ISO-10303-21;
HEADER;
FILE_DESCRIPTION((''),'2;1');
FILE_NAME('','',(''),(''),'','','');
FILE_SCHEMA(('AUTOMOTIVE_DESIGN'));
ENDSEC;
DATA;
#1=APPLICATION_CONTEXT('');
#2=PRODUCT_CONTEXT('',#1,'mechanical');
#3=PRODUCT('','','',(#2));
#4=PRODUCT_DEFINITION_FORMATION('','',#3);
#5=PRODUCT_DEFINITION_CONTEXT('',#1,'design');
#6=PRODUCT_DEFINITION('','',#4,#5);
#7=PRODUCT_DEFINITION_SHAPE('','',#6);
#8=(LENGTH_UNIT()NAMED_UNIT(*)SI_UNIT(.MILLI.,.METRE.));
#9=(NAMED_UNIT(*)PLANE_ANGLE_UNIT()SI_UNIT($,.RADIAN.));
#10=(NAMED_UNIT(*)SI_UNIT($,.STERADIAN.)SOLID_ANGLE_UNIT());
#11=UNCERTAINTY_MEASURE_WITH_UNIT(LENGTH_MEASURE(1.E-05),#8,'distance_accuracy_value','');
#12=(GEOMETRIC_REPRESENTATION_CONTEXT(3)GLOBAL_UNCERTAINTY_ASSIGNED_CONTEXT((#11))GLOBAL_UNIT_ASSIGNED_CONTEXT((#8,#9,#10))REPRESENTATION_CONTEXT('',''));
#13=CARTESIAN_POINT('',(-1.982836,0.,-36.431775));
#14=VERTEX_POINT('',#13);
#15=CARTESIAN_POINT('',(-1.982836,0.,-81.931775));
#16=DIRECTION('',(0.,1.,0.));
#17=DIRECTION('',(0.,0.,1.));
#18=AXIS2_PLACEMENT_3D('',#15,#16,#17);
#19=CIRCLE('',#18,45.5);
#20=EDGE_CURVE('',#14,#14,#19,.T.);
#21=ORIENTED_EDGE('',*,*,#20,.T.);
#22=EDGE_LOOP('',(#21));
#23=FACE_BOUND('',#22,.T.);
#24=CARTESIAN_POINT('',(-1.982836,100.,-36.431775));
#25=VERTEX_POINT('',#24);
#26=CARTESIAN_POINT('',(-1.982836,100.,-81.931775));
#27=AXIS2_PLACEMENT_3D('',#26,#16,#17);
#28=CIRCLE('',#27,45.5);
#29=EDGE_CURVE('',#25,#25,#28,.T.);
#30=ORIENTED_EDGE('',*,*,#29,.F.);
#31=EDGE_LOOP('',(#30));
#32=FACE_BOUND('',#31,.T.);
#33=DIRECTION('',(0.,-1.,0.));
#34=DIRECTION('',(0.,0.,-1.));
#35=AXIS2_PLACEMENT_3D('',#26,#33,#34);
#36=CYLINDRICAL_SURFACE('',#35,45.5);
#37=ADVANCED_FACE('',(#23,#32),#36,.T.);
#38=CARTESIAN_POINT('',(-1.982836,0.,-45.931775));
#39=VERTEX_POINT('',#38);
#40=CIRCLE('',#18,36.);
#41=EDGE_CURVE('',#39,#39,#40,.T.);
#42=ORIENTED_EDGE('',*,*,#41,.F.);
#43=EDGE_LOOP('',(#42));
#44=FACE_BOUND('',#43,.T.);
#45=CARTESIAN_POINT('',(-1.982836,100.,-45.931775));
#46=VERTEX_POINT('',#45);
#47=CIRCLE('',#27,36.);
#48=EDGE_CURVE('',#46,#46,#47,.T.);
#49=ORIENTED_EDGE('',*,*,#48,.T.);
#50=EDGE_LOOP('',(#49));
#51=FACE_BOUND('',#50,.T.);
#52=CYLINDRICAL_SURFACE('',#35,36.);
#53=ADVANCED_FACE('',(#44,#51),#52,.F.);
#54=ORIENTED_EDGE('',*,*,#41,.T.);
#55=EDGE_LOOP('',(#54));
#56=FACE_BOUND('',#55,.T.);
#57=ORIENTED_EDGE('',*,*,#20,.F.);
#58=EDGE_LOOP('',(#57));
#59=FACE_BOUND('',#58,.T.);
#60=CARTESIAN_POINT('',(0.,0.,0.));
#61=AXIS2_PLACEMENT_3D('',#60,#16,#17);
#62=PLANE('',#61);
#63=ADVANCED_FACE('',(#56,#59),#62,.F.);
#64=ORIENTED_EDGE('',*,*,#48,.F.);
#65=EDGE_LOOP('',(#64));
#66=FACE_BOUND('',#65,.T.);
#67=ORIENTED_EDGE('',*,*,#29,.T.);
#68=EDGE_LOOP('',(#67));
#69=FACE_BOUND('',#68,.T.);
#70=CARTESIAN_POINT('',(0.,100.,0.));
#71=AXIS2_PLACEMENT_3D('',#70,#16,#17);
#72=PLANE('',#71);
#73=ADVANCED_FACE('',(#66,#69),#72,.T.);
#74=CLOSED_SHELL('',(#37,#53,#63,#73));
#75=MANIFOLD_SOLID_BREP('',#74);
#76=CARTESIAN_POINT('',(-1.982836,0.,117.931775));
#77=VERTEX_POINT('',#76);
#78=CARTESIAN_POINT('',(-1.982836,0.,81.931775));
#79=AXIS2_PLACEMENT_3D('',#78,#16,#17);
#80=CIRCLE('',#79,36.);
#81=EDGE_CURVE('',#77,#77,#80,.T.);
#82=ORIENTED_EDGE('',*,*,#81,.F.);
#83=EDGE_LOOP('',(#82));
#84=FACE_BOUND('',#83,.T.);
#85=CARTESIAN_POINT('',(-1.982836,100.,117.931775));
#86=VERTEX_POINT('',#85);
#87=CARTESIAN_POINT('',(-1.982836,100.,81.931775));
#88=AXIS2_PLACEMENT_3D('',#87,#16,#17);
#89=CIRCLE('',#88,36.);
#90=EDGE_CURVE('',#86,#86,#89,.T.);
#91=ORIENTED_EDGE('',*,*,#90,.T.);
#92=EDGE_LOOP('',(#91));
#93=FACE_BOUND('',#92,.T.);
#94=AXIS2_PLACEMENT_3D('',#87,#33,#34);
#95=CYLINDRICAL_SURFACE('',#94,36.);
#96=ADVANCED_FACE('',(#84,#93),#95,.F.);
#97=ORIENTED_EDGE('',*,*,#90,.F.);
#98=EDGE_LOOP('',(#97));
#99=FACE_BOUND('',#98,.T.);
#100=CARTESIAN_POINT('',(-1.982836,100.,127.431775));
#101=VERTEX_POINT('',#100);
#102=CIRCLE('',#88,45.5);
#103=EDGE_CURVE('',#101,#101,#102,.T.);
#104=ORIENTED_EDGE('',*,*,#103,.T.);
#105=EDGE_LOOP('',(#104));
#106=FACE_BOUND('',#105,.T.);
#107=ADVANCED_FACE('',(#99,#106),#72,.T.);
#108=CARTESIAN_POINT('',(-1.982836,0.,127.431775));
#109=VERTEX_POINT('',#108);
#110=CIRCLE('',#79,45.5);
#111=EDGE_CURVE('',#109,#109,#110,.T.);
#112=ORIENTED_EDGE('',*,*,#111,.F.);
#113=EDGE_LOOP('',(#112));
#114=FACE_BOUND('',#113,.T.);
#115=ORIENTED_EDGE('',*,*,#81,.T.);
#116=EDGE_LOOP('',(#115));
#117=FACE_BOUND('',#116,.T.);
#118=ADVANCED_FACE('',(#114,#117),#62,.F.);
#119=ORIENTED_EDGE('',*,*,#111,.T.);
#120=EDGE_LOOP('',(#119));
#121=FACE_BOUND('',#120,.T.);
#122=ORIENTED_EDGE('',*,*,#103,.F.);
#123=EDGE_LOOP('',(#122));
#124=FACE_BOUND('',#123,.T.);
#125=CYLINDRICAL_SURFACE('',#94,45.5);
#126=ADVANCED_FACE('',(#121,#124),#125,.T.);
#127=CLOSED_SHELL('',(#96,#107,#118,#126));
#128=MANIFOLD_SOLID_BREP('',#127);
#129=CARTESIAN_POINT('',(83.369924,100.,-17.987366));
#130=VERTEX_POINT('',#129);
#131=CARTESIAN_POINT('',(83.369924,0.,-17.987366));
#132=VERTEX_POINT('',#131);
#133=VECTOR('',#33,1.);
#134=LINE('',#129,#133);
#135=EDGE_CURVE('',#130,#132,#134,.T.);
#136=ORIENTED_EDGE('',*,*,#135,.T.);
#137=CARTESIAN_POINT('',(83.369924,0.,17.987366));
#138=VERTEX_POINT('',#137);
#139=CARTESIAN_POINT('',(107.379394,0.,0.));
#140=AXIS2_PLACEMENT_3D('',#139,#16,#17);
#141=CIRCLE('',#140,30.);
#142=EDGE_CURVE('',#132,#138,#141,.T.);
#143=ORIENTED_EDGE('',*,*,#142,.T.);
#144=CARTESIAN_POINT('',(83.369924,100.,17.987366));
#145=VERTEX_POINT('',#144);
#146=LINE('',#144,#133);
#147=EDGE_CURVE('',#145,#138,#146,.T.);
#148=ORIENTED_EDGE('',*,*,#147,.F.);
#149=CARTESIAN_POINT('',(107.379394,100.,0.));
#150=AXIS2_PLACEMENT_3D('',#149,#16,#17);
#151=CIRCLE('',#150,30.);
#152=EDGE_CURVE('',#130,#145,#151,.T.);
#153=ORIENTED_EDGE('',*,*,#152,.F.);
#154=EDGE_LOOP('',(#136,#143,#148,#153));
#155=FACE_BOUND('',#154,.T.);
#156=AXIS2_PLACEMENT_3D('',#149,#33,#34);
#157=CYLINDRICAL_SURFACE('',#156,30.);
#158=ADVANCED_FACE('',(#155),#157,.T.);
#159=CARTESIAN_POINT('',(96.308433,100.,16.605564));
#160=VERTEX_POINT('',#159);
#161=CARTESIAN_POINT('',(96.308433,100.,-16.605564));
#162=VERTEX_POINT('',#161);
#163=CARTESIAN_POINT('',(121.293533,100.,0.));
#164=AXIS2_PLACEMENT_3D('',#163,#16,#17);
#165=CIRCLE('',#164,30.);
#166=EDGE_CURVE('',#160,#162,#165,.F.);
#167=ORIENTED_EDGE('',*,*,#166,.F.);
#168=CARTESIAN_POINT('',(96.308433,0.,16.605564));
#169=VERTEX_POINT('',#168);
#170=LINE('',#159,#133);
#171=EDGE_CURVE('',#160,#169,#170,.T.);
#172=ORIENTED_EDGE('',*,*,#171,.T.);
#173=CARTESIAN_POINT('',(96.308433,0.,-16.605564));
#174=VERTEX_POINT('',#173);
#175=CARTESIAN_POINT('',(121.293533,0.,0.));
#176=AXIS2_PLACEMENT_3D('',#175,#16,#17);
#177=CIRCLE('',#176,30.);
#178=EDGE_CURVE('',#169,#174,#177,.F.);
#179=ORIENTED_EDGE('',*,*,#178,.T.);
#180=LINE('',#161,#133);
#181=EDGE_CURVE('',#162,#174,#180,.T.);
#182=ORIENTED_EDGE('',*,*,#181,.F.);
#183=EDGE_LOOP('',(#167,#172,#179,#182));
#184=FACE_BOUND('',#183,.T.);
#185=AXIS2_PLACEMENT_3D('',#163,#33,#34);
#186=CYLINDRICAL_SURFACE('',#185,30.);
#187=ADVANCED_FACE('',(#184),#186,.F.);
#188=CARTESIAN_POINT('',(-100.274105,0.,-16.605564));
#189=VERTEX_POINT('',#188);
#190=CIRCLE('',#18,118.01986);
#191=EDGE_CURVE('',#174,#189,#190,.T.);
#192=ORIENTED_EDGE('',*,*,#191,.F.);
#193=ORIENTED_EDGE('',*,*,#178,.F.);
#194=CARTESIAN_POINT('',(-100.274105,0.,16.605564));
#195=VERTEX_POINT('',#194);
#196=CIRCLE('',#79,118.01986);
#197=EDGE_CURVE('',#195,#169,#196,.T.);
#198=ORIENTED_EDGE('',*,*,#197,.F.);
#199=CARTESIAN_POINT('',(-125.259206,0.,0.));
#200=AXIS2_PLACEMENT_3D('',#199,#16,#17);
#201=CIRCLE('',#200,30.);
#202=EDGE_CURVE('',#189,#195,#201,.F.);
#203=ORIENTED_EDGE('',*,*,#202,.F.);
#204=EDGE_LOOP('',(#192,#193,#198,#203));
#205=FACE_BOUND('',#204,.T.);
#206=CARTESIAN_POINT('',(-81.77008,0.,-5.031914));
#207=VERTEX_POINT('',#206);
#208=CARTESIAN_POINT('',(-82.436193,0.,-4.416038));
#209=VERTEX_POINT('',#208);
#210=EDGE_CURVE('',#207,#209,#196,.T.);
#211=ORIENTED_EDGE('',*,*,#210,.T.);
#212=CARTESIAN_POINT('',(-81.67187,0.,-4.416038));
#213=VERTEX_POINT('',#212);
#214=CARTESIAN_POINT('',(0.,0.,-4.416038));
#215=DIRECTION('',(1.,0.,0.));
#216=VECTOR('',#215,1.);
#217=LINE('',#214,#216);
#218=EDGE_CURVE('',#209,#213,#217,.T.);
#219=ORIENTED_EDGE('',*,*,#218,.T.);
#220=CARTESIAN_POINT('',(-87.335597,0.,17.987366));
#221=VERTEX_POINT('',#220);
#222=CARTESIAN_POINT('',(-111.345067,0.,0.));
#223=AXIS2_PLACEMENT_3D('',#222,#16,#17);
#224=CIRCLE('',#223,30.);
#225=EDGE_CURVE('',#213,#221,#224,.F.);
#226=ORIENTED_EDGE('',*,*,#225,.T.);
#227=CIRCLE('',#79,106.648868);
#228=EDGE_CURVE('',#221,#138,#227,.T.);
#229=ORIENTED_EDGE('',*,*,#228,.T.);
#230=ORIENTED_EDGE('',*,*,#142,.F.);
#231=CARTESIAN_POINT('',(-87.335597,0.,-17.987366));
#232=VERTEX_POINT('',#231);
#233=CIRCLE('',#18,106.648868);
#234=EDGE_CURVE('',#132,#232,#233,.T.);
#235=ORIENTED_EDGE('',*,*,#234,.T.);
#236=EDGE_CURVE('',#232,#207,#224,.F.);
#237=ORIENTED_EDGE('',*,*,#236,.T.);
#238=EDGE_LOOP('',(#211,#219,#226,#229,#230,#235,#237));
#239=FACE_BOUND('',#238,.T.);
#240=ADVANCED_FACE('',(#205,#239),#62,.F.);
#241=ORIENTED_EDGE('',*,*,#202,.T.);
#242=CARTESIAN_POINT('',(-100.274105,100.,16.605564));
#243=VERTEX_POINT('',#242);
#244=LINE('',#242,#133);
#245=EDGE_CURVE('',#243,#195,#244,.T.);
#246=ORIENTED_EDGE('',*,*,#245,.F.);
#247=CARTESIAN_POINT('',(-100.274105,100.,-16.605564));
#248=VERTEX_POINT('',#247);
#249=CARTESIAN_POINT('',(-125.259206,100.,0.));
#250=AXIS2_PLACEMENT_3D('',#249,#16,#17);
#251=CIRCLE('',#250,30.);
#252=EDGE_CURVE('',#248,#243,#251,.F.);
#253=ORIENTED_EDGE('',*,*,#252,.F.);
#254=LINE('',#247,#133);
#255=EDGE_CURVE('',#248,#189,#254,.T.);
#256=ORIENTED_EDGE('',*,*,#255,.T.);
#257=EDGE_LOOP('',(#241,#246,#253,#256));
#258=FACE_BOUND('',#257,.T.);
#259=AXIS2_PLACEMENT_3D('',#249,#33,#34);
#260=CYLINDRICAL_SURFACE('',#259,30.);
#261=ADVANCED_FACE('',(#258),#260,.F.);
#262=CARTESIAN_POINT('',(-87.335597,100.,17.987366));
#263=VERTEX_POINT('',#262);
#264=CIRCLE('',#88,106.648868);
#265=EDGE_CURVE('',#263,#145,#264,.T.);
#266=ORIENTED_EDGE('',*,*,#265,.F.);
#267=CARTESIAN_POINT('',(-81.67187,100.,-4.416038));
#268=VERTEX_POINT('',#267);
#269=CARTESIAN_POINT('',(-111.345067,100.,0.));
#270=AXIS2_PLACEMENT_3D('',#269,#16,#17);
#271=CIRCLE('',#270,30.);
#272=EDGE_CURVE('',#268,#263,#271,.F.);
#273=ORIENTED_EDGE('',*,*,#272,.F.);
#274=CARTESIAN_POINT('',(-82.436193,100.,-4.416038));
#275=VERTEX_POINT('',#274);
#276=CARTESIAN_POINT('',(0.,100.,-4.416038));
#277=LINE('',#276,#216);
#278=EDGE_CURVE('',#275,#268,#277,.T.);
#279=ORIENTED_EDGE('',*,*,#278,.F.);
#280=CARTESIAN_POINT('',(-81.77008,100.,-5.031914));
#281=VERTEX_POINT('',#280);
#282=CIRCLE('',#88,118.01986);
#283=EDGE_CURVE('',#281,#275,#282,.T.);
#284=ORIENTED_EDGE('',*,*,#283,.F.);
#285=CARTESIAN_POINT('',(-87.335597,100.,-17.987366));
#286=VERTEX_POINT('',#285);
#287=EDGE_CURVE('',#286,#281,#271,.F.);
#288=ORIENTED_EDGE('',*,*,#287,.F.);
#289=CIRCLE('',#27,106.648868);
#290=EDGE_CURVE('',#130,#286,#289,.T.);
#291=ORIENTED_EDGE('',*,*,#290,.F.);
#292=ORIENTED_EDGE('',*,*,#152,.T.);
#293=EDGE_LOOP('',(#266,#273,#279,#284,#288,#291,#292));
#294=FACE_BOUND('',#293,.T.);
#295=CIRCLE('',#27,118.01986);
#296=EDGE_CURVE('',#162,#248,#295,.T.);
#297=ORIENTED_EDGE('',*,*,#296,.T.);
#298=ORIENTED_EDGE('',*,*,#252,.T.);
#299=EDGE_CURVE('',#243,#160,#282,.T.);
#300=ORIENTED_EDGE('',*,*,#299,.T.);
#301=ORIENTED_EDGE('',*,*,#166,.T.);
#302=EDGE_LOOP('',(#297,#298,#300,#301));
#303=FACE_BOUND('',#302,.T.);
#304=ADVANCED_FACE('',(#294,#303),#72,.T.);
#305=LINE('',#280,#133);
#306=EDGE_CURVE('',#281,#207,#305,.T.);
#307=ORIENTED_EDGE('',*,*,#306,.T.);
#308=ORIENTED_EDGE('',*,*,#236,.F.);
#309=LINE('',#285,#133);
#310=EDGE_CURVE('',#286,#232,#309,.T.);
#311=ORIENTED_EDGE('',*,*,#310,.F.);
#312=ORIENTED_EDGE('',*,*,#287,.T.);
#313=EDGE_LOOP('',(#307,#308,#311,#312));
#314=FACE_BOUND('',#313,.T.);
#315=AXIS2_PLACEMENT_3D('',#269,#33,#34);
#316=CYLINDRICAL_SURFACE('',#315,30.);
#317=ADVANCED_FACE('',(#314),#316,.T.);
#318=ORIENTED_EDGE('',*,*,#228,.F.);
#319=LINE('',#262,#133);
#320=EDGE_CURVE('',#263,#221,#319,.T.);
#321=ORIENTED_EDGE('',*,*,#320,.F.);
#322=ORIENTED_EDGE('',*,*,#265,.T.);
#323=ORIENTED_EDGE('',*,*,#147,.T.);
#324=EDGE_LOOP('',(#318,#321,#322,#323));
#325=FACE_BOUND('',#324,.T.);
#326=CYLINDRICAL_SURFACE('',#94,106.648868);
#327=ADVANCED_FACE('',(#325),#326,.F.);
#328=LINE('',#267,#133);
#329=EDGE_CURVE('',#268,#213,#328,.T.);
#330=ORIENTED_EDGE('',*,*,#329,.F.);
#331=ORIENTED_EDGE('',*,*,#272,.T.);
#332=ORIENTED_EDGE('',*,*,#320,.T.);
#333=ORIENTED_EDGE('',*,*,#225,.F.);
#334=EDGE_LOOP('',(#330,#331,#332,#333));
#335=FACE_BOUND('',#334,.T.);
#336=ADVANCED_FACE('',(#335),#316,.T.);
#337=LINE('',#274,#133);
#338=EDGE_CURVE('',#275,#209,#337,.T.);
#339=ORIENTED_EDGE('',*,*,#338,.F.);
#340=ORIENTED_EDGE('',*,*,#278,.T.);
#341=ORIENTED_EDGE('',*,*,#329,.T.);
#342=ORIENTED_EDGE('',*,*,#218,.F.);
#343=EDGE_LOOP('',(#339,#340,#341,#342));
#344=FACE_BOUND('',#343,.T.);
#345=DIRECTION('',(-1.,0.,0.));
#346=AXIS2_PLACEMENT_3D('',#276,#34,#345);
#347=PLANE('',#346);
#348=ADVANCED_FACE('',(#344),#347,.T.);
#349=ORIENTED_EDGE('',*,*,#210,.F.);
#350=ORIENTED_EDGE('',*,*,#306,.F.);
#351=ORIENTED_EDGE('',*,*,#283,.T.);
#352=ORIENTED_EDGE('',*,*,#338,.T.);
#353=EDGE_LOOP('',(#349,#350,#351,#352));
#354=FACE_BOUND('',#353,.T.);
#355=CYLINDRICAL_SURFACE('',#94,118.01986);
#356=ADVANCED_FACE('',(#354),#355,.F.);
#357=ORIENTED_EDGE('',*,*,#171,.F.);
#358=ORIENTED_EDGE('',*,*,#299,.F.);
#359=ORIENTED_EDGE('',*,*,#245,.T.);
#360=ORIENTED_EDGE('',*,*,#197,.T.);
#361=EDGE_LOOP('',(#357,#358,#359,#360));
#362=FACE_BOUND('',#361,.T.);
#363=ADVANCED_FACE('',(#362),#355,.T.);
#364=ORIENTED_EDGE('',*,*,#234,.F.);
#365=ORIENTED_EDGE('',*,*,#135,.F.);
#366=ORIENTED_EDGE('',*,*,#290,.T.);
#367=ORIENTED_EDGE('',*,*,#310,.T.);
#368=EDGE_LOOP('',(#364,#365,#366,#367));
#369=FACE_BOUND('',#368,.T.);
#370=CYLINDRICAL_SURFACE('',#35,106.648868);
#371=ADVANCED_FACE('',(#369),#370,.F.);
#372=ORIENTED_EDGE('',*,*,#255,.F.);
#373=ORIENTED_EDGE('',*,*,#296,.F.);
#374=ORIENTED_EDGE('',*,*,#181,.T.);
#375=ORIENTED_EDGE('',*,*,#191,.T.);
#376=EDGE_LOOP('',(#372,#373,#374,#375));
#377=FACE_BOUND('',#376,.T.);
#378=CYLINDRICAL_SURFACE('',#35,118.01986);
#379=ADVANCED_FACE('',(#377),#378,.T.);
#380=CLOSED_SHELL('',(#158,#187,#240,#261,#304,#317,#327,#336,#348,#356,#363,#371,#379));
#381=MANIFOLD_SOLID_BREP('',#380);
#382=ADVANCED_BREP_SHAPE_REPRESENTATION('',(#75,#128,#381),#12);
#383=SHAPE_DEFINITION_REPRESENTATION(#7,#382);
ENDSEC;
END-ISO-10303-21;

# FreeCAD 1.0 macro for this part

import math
import FreeCAD as App
import Part
import Sketcher

V = App.Vector

doc = App.newDocument("Part")
body = doc.addObject("PartDesign::Body", "Body")

sketch1 = doc.addObject("Sketcher::SketchObject", "Sketch")
body.addObject(sketch1)
sketch1.AttachmentSupport = (doc.XZ_Plane, [""])
sketch1.MapMode = "FlatFace"
sketch1.addGeometry([
    Part.ArcOfCircle(Part.Circle(V(-125.3, 0, 0), V(0, 0, 1), 30), math.radians(-34), math.radians(34)),
    Part.ArcOfCircle(Part.Circle(V(-2, 81.9, 0), V(0, 0, 1), 118), math.radians(-34), math.radians(214)),
    Part.ArcOfCircle(Part.Circle(V(121.3, 0, 0), V(0, 0, 1), 30), math.radians(146), math.radians(214)),
    Part.ArcOfCircle(Part.Circle(V(-2, -81.9, 0), V(0, 0, 1), 118), math.radians(146), math.radians(394)),
    Part.ArcOfCircle(Part.Circle(V(-2, -81.9, 0), V(0, 0, 1), 106.6), math.radians(143), math.radians(397)),
    Part.ArcOfCircle(Part.Circle(V(107.4, 0, 0), V(0, 0, 1), 30), math.radians(143), math.radians(217)),
    Part.ArcOfCircle(Part.Circle(V(-2, 81.9, 0), V(0, 0, 1), 106.6), math.radians(-37), math.radians(217)),
    Part.ArcOfCircle(Part.Circle(V(-111.3, 0, 0), V(0, 0, 1), 30), math.radians(-8), math.radians(37)),
    Part.LineSegment(V(-81.7, -4.4, 0), V(-82.4, -4.4, 0)),
    Part.ArcOfCircle(Part.Circle(V(-2, 81.9, 0), V(0, 0, 1), 118), math.radians(-132.98), math.radians(-132.54)),
    Part.ArcOfCircle(Part.Circle(V(-111.3, 0, 0), V(0, 0, 1), 30), math.radians(-37), math.radians(-10)),
], False)
sketch1.addConstraint([
    Sketcher.Constraint("Tangent", 0, 2, 1, 2),
    Sketcher.Constraint("Tangent", 1, 1, 2, 1),
    Sketcher.Constraint("Tangent", 2, 2, 3, 2),
    Sketcher.Constraint("Tangent", 3, 1, 0, 1),
    Sketcher.Constraint("Tangent", 4, 2, 5, 2),
    Sketcher.Constraint("Tangent", 5, 1, 6, 1),
    Sketcher.Constraint("Tangent", 6, 2, 7, 2),
    Sketcher.Constraint("Coincident", 7, 1, 8, 1),
    Sketcher.Constraint("Coincident", 8, 2, 9, 1),
    Sketcher.Constraint("Coincident", 9, 2, 10, 2),
    Sketcher.Constraint("Tangent", 10, 1, 4, 1),
    Sketcher.Constraint("Horizontal", 8),
    Sketcher.Constraint("Coincident", 4, 3, 3, 3),
    Sketcher.Constraint("Coincident", 6, 3, 1, 3),
    Sketcher.Constraint("Coincident", 10, 3, 7, 3),
    Sketcher.Constraint("Equal", 0, 2),
    Sketcher.Constraint("Equal", 1, 3),
    Sketcher.Constraint("Equal", 2, 5),
    Sketcher.Constraint("Equal", 4, 6),
    Sketcher.Constraint("Equal", 5, 7),
    Sketcher.Constraint("Equal", 7, 10),
    Sketcher.Constraint("Symmetric", 1, 3, 3, 3, -1),
    Sketcher.Constraint("Radius", 0, 30.0),
    Sketcher.Constraint("Radius", 1, 118.01986),
    Sketcher.Constraint("Radius", 4, 106.648868),
    Sketcher.Constraint("Radius", 9, 118.019824),
    Sketcher.Constraint("DistanceX", 0, 3, 5, 3, 232.6386),
    Sketcher.Constraint("DistanceX", 8, 2, 8, 1, 0.764322),
    Sketcher.Constraint("DistanceX", 9, 3, -1, 1, 1.98286),
    Sketcher.Constraint("DistanceY", -1, 1, 9, 3, 81.931749),
    Sketcher.Constraint("DistanceX", 7, 1, -1, 1, 81.67187),
])
pad1 = doc.addObject("PartDesign::Pad", "Pad")
body.addObject(pad1)
pad1.Profile = sketch1
pad1.Length = 100
pad1.Reversed = True
body2 = doc.addObject("PartDesign::Body", "Body001")

sketch2 = doc.addObject("Sketcher::SketchObject", "Sketch001")
body2.addObject(sketch2)
sketch2.AttachmentSupport = (doc.getObject("XZ_Plane001"), [""])
sketch2.MapMode = "FlatFace"
sketch2.addGeometry([
    Part.Circle(V(-2, -82, 0), V(0, 0, 1), 46),
    Part.Circle(V(-2, -82, 0), V(0, 0, 1), 36),
], False)
sketch2.addConstraint([
    Sketcher.Constraint("Coincident", 1, 3, 0, 3),
    Sketcher.Constraint("Diameter", 0, 91.0),
    Sketcher.Constraint("Diameter", 1, 72.0),
    Sketcher.Constraint("DistanceX", 0, 3, -1, 1, 1.982836),
    Sketcher.Constraint("DistanceY", 0, 3, -1, 1, 81.931775),
])
pad2 = doc.addObject("PartDesign::Pad", "Pad001")
body2.addObject(pad2)
pad2.Profile = sketch2
pad2.Length = 100
pad2.Reversed = True
body3 = doc.addObject("PartDesign::Body", "Body002")

sketch3 = doc.addObject("Sketcher::SketchObject", "Sketch002")
body3.addObject(sketch3)
sketch3.AttachmentSupport = (doc.getObject("XZ_Plane002"), [""])
sketch3.MapMode = "FlatFace"
sketch3.addGeometry([
    Part.Circle(V(-2, 82, 0), V(0, 0, 1), 46),
    Part.Circle(V(-2, 82, 0), V(0, 0, 1), 36),
], False)
sketch3.addConstraint([
    Sketcher.Constraint("Coincident", 1, 3, 0, 3),
    Sketcher.Constraint("Diameter", 0, 91.0),
    Sketcher.Constraint("Diameter", 1, 72.0),
    Sketcher.Constraint("DistanceX", 0, 3, -1, 1, 1.982836),
    Sketcher.Constraint("DistanceY", -1, 1, 0, 3, 81.931775),
])
pad3 = doc.addObject("PartDesign::Pad", "Pad002")
body3.addObject(pad3)
pad3.Profile = sketch3
pad3.Length = 100
pad3.Reversed = True

doc.recompute()
